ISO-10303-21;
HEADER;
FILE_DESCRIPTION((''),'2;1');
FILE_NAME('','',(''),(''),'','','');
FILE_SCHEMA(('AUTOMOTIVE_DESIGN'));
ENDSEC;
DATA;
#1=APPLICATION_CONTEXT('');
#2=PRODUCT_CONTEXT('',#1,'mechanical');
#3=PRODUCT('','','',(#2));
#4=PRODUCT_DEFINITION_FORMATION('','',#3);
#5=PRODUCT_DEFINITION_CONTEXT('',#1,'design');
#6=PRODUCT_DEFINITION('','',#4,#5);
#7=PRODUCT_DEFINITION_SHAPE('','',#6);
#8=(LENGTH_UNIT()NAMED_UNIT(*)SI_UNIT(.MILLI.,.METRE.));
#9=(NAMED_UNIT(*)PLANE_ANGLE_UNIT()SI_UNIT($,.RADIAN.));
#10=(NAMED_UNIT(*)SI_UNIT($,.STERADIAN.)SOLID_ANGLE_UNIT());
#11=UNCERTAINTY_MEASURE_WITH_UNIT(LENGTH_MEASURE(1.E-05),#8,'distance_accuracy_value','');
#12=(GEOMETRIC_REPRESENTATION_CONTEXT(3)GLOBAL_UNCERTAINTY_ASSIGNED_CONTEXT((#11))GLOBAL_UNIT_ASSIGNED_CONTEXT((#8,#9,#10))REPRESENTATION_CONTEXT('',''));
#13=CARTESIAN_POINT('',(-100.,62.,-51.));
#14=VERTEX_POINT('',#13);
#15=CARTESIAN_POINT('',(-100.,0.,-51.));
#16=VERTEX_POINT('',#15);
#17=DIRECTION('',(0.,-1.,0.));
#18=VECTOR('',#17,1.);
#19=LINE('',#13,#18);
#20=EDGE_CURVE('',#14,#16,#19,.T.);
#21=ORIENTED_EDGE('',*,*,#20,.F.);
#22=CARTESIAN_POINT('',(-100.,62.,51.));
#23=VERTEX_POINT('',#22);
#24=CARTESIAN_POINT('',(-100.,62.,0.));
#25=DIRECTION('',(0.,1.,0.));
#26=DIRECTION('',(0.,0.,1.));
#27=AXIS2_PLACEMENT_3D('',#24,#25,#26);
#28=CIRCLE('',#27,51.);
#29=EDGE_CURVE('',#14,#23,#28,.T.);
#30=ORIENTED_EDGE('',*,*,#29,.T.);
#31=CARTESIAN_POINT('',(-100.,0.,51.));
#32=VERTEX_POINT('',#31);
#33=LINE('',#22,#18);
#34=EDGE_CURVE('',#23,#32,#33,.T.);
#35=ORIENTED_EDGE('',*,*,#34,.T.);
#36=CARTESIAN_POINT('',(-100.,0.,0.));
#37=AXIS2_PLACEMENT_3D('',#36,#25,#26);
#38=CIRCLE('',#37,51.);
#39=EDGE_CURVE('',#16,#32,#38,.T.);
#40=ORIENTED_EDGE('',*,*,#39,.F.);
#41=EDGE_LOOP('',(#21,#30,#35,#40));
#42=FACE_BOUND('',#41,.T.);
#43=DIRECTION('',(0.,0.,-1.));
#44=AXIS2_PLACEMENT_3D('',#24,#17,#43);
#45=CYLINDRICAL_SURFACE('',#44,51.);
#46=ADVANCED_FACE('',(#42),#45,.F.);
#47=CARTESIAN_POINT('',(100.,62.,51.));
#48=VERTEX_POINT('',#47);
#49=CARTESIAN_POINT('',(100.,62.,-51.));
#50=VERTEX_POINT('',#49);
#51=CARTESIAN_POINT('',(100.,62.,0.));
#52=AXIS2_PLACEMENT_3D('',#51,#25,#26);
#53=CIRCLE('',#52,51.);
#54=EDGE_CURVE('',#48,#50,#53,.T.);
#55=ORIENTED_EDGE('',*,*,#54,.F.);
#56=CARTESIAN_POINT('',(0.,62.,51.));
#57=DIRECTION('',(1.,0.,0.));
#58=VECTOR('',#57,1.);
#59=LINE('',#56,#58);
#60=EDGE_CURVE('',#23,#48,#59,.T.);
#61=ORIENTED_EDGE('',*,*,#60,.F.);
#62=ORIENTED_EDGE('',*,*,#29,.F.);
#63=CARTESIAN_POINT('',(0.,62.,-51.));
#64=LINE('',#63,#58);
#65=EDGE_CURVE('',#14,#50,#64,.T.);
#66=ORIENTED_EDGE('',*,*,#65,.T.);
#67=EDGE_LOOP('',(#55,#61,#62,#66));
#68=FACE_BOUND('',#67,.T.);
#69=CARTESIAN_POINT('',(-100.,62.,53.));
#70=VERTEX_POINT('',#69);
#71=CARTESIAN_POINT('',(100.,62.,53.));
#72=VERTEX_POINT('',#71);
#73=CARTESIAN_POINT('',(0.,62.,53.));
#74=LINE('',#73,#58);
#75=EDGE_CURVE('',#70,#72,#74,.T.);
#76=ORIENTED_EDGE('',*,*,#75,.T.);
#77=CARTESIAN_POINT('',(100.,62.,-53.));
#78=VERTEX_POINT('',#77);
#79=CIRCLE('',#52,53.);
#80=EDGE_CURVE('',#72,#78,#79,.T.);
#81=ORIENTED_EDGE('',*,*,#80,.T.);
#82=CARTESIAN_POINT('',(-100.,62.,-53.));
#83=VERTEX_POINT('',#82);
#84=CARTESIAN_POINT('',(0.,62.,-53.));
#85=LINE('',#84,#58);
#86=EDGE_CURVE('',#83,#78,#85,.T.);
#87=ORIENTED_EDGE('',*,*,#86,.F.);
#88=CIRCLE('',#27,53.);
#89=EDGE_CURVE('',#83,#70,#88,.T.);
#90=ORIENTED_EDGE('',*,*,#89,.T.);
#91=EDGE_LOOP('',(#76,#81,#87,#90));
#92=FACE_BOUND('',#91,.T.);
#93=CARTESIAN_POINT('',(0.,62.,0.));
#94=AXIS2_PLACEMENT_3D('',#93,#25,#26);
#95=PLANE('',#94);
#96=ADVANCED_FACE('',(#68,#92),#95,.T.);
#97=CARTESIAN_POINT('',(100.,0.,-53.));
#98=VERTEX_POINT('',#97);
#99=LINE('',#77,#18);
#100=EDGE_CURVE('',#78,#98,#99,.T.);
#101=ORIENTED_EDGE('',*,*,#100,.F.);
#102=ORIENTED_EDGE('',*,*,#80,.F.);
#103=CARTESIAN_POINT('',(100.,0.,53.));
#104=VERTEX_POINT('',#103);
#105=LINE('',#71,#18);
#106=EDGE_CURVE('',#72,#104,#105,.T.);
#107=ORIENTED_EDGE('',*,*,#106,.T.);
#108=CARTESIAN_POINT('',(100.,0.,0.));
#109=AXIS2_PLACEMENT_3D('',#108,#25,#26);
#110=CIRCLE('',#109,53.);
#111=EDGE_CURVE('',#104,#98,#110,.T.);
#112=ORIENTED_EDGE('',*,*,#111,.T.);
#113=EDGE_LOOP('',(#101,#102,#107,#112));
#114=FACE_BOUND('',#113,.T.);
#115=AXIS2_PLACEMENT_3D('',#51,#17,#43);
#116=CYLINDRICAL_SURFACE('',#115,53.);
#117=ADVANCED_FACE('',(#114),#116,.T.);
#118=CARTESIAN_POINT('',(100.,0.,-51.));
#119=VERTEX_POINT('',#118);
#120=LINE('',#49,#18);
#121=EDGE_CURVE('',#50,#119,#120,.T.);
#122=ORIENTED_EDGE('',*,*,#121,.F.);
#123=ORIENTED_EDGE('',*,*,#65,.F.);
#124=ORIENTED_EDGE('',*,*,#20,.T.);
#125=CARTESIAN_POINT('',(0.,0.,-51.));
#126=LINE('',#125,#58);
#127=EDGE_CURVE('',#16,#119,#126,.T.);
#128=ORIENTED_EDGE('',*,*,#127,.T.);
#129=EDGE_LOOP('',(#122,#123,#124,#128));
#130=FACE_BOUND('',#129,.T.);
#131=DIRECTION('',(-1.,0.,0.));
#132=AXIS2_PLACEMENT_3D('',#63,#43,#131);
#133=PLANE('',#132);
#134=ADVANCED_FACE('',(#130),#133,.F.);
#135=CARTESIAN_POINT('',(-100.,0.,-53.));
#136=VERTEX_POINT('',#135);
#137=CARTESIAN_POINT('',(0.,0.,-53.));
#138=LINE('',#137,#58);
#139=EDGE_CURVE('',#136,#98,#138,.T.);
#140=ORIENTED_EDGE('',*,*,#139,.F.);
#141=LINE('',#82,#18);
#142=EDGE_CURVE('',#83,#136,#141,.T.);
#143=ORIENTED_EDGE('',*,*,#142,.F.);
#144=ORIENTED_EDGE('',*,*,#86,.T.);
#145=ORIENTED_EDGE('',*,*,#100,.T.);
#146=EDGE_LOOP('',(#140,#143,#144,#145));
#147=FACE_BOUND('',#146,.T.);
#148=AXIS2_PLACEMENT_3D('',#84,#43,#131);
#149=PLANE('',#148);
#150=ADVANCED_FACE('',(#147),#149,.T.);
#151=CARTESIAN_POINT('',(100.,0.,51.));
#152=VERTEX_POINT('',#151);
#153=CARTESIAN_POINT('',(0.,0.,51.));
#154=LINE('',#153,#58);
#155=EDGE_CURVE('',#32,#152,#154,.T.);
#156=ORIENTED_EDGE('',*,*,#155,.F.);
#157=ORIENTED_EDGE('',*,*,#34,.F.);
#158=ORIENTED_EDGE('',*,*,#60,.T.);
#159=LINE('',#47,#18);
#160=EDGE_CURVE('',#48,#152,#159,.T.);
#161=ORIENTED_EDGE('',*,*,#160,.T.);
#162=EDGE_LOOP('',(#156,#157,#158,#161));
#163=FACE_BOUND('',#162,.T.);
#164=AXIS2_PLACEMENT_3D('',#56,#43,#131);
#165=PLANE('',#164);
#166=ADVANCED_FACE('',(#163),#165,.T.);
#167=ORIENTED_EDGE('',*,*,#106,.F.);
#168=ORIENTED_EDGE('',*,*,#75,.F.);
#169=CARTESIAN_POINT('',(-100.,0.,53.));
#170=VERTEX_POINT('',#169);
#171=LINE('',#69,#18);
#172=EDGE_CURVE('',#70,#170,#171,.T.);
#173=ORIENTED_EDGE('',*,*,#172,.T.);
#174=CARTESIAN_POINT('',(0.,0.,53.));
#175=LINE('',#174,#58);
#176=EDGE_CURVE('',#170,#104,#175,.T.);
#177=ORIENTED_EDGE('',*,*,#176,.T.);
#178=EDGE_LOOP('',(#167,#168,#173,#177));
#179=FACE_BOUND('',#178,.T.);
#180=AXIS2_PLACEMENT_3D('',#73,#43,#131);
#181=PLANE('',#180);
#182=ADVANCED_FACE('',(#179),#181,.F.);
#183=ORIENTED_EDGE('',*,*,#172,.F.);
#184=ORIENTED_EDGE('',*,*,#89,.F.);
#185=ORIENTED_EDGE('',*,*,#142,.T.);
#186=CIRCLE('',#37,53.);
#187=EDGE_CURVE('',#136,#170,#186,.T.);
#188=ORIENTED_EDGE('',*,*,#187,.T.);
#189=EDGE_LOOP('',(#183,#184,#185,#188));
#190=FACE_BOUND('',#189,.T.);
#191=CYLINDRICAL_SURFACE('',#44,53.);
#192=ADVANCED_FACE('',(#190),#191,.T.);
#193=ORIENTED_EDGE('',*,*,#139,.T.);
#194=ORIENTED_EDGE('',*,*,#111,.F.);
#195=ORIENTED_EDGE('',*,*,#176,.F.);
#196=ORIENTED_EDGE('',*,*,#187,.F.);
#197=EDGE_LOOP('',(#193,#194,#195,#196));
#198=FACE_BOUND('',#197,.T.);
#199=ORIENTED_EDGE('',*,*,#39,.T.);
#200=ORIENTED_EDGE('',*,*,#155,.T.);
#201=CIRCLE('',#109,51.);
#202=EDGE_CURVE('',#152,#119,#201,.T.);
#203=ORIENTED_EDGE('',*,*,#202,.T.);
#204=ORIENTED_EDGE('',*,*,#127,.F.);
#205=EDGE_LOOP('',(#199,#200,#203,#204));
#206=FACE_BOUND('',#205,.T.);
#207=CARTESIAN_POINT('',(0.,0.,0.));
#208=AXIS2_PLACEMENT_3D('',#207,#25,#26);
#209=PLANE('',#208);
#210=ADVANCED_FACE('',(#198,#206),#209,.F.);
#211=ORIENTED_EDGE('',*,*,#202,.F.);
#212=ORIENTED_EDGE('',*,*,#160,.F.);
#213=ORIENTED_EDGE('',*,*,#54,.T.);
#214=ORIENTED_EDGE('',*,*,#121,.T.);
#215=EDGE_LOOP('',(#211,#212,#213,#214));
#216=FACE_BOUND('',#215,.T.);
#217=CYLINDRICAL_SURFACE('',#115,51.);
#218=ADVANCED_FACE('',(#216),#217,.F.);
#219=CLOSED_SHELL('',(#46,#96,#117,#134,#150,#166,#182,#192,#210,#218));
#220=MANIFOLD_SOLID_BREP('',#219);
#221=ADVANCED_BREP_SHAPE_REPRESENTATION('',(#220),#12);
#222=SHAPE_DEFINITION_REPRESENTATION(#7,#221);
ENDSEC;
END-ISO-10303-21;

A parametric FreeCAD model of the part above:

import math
import FreeCAD as App
import Part
import Sketcher
from FreeCAD import Vector
Q = App.Units.Quantity

doc = App.newDocument("Part")
body = doc.addObject("PartDesign::Body", "Body")

sketch1 = body.newObject("Sketcher::SketchObject", "Sketch")
sketch1.AttachmentSupport = (doc.getObject("XZ_Plane"), [""])
sketch1.MapMode = "FlatFace"
sketch1.addGeometry(Part.LineSegment(Vector(-100, 53, 0), Vector(100, 53, 0)), False)
sketch1.addGeometry(Part.ArcOfCircle(Part.Circle(Vector(100, 0, 0), Vector(0, 0, 1), 53), math.radians(-90), math.radians(90)), False)
sketch1.addGeometry(Part.LineSegment(Vector(100, -53, 0), Vector(-100, -53, 0)), False)
sketch1.addGeometry(Part.ArcOfCircle(Part.Circle(Vector(-100, 0, 0), Vector(0, 0, 1), 53), math.radians(90), math.radians(270)), False)
sketch1.addGeometry(Part.ArcOfCircle(Part.Circle(Vector(-100, 0, 0), Vector(0, 0, 1), 51), math.radians(90), math.radians(270)), False)
sketch1.addGeometry(Part.LineSegment(Vector(-100, -51, 0), Vector(100, -51, 0)), False)
sketch1.addGeometry(Part.ArcOfCircle(Part.Circle(Vector(100, 0, 0), Vector(0, 0, 1), 51), math.radians(-90), math.radians(90)), False)
sketch1.addGeometry(Part.LineSegment(Vector(100, 51, 0), Vector(-100, 51, 0)), False)
sketch1.addConstraint(Sketcher.Constraint("Tangent", 0, 2, 1, 2))
sketch1.addConstraint(Sketcher.Constraint("Tangent", 1, 1, 2, 1))
sketch1.addConstraint(Sketcher.Constraint("Tangent", 2, 2, 3, 2))
sketch1.addConstraint(Sketcher.Constraint("Tangent", 3, 1, 0, 1))
sketch1.addConstraint(Sketcher.Constraint("Tangent", 4, 2, 5, 1))
sketch1.addConstraint(Sketcher.Constraint("Tangent", 5, 2, 6, 1))
sketch1.addConstraint(Sketcher.Constraint("Tangent", 6, 2, 7, 1))
sketch1.addConstraint(Sketcher.Constraint("Tangent", 7, 2, 4, 1))
sketch1.addConstraint(Sketcher.Constraint("Horizontal", 0))
sketch1.addConstraint(Sketcher.Constraint("Horizontal", 2))
sketch1.addConstraint(Sketcher.Constraint("Horizontal", 5))
sketch1.addConstraint(Sketcher.Constraint("Horizontal", 7))
sketch1.addConstraint(Sketcher.Constraint("Coincident", 4, 3, 3, 3))
sketch1.addConstraint(Sketcher.Constraint("Symmetric", 1, 3, 3, 3, -1, 1))
sketch1.addConstraint(Sketcher.Constraint("Vertical", 6, 3, 0, 2))
sketch1.addConstraint(Sketcher.Constraint("Radius", 1, Q("53 mm")))
sketch1.addConstraint(Sketcher.Constraint("Radius", 4, Q("51 mm")))
sketch1.addConstraint(Sketcher.Constraint("DistanceX", 0, 1, 0, 2, Q("200 mm")))
pad1 = body.newObject("PartDesign::Pad", "Pad")
pad1.Profile = sketch1
pad1.Length = 62
pad1.Reversed = True

doc.recompute()
